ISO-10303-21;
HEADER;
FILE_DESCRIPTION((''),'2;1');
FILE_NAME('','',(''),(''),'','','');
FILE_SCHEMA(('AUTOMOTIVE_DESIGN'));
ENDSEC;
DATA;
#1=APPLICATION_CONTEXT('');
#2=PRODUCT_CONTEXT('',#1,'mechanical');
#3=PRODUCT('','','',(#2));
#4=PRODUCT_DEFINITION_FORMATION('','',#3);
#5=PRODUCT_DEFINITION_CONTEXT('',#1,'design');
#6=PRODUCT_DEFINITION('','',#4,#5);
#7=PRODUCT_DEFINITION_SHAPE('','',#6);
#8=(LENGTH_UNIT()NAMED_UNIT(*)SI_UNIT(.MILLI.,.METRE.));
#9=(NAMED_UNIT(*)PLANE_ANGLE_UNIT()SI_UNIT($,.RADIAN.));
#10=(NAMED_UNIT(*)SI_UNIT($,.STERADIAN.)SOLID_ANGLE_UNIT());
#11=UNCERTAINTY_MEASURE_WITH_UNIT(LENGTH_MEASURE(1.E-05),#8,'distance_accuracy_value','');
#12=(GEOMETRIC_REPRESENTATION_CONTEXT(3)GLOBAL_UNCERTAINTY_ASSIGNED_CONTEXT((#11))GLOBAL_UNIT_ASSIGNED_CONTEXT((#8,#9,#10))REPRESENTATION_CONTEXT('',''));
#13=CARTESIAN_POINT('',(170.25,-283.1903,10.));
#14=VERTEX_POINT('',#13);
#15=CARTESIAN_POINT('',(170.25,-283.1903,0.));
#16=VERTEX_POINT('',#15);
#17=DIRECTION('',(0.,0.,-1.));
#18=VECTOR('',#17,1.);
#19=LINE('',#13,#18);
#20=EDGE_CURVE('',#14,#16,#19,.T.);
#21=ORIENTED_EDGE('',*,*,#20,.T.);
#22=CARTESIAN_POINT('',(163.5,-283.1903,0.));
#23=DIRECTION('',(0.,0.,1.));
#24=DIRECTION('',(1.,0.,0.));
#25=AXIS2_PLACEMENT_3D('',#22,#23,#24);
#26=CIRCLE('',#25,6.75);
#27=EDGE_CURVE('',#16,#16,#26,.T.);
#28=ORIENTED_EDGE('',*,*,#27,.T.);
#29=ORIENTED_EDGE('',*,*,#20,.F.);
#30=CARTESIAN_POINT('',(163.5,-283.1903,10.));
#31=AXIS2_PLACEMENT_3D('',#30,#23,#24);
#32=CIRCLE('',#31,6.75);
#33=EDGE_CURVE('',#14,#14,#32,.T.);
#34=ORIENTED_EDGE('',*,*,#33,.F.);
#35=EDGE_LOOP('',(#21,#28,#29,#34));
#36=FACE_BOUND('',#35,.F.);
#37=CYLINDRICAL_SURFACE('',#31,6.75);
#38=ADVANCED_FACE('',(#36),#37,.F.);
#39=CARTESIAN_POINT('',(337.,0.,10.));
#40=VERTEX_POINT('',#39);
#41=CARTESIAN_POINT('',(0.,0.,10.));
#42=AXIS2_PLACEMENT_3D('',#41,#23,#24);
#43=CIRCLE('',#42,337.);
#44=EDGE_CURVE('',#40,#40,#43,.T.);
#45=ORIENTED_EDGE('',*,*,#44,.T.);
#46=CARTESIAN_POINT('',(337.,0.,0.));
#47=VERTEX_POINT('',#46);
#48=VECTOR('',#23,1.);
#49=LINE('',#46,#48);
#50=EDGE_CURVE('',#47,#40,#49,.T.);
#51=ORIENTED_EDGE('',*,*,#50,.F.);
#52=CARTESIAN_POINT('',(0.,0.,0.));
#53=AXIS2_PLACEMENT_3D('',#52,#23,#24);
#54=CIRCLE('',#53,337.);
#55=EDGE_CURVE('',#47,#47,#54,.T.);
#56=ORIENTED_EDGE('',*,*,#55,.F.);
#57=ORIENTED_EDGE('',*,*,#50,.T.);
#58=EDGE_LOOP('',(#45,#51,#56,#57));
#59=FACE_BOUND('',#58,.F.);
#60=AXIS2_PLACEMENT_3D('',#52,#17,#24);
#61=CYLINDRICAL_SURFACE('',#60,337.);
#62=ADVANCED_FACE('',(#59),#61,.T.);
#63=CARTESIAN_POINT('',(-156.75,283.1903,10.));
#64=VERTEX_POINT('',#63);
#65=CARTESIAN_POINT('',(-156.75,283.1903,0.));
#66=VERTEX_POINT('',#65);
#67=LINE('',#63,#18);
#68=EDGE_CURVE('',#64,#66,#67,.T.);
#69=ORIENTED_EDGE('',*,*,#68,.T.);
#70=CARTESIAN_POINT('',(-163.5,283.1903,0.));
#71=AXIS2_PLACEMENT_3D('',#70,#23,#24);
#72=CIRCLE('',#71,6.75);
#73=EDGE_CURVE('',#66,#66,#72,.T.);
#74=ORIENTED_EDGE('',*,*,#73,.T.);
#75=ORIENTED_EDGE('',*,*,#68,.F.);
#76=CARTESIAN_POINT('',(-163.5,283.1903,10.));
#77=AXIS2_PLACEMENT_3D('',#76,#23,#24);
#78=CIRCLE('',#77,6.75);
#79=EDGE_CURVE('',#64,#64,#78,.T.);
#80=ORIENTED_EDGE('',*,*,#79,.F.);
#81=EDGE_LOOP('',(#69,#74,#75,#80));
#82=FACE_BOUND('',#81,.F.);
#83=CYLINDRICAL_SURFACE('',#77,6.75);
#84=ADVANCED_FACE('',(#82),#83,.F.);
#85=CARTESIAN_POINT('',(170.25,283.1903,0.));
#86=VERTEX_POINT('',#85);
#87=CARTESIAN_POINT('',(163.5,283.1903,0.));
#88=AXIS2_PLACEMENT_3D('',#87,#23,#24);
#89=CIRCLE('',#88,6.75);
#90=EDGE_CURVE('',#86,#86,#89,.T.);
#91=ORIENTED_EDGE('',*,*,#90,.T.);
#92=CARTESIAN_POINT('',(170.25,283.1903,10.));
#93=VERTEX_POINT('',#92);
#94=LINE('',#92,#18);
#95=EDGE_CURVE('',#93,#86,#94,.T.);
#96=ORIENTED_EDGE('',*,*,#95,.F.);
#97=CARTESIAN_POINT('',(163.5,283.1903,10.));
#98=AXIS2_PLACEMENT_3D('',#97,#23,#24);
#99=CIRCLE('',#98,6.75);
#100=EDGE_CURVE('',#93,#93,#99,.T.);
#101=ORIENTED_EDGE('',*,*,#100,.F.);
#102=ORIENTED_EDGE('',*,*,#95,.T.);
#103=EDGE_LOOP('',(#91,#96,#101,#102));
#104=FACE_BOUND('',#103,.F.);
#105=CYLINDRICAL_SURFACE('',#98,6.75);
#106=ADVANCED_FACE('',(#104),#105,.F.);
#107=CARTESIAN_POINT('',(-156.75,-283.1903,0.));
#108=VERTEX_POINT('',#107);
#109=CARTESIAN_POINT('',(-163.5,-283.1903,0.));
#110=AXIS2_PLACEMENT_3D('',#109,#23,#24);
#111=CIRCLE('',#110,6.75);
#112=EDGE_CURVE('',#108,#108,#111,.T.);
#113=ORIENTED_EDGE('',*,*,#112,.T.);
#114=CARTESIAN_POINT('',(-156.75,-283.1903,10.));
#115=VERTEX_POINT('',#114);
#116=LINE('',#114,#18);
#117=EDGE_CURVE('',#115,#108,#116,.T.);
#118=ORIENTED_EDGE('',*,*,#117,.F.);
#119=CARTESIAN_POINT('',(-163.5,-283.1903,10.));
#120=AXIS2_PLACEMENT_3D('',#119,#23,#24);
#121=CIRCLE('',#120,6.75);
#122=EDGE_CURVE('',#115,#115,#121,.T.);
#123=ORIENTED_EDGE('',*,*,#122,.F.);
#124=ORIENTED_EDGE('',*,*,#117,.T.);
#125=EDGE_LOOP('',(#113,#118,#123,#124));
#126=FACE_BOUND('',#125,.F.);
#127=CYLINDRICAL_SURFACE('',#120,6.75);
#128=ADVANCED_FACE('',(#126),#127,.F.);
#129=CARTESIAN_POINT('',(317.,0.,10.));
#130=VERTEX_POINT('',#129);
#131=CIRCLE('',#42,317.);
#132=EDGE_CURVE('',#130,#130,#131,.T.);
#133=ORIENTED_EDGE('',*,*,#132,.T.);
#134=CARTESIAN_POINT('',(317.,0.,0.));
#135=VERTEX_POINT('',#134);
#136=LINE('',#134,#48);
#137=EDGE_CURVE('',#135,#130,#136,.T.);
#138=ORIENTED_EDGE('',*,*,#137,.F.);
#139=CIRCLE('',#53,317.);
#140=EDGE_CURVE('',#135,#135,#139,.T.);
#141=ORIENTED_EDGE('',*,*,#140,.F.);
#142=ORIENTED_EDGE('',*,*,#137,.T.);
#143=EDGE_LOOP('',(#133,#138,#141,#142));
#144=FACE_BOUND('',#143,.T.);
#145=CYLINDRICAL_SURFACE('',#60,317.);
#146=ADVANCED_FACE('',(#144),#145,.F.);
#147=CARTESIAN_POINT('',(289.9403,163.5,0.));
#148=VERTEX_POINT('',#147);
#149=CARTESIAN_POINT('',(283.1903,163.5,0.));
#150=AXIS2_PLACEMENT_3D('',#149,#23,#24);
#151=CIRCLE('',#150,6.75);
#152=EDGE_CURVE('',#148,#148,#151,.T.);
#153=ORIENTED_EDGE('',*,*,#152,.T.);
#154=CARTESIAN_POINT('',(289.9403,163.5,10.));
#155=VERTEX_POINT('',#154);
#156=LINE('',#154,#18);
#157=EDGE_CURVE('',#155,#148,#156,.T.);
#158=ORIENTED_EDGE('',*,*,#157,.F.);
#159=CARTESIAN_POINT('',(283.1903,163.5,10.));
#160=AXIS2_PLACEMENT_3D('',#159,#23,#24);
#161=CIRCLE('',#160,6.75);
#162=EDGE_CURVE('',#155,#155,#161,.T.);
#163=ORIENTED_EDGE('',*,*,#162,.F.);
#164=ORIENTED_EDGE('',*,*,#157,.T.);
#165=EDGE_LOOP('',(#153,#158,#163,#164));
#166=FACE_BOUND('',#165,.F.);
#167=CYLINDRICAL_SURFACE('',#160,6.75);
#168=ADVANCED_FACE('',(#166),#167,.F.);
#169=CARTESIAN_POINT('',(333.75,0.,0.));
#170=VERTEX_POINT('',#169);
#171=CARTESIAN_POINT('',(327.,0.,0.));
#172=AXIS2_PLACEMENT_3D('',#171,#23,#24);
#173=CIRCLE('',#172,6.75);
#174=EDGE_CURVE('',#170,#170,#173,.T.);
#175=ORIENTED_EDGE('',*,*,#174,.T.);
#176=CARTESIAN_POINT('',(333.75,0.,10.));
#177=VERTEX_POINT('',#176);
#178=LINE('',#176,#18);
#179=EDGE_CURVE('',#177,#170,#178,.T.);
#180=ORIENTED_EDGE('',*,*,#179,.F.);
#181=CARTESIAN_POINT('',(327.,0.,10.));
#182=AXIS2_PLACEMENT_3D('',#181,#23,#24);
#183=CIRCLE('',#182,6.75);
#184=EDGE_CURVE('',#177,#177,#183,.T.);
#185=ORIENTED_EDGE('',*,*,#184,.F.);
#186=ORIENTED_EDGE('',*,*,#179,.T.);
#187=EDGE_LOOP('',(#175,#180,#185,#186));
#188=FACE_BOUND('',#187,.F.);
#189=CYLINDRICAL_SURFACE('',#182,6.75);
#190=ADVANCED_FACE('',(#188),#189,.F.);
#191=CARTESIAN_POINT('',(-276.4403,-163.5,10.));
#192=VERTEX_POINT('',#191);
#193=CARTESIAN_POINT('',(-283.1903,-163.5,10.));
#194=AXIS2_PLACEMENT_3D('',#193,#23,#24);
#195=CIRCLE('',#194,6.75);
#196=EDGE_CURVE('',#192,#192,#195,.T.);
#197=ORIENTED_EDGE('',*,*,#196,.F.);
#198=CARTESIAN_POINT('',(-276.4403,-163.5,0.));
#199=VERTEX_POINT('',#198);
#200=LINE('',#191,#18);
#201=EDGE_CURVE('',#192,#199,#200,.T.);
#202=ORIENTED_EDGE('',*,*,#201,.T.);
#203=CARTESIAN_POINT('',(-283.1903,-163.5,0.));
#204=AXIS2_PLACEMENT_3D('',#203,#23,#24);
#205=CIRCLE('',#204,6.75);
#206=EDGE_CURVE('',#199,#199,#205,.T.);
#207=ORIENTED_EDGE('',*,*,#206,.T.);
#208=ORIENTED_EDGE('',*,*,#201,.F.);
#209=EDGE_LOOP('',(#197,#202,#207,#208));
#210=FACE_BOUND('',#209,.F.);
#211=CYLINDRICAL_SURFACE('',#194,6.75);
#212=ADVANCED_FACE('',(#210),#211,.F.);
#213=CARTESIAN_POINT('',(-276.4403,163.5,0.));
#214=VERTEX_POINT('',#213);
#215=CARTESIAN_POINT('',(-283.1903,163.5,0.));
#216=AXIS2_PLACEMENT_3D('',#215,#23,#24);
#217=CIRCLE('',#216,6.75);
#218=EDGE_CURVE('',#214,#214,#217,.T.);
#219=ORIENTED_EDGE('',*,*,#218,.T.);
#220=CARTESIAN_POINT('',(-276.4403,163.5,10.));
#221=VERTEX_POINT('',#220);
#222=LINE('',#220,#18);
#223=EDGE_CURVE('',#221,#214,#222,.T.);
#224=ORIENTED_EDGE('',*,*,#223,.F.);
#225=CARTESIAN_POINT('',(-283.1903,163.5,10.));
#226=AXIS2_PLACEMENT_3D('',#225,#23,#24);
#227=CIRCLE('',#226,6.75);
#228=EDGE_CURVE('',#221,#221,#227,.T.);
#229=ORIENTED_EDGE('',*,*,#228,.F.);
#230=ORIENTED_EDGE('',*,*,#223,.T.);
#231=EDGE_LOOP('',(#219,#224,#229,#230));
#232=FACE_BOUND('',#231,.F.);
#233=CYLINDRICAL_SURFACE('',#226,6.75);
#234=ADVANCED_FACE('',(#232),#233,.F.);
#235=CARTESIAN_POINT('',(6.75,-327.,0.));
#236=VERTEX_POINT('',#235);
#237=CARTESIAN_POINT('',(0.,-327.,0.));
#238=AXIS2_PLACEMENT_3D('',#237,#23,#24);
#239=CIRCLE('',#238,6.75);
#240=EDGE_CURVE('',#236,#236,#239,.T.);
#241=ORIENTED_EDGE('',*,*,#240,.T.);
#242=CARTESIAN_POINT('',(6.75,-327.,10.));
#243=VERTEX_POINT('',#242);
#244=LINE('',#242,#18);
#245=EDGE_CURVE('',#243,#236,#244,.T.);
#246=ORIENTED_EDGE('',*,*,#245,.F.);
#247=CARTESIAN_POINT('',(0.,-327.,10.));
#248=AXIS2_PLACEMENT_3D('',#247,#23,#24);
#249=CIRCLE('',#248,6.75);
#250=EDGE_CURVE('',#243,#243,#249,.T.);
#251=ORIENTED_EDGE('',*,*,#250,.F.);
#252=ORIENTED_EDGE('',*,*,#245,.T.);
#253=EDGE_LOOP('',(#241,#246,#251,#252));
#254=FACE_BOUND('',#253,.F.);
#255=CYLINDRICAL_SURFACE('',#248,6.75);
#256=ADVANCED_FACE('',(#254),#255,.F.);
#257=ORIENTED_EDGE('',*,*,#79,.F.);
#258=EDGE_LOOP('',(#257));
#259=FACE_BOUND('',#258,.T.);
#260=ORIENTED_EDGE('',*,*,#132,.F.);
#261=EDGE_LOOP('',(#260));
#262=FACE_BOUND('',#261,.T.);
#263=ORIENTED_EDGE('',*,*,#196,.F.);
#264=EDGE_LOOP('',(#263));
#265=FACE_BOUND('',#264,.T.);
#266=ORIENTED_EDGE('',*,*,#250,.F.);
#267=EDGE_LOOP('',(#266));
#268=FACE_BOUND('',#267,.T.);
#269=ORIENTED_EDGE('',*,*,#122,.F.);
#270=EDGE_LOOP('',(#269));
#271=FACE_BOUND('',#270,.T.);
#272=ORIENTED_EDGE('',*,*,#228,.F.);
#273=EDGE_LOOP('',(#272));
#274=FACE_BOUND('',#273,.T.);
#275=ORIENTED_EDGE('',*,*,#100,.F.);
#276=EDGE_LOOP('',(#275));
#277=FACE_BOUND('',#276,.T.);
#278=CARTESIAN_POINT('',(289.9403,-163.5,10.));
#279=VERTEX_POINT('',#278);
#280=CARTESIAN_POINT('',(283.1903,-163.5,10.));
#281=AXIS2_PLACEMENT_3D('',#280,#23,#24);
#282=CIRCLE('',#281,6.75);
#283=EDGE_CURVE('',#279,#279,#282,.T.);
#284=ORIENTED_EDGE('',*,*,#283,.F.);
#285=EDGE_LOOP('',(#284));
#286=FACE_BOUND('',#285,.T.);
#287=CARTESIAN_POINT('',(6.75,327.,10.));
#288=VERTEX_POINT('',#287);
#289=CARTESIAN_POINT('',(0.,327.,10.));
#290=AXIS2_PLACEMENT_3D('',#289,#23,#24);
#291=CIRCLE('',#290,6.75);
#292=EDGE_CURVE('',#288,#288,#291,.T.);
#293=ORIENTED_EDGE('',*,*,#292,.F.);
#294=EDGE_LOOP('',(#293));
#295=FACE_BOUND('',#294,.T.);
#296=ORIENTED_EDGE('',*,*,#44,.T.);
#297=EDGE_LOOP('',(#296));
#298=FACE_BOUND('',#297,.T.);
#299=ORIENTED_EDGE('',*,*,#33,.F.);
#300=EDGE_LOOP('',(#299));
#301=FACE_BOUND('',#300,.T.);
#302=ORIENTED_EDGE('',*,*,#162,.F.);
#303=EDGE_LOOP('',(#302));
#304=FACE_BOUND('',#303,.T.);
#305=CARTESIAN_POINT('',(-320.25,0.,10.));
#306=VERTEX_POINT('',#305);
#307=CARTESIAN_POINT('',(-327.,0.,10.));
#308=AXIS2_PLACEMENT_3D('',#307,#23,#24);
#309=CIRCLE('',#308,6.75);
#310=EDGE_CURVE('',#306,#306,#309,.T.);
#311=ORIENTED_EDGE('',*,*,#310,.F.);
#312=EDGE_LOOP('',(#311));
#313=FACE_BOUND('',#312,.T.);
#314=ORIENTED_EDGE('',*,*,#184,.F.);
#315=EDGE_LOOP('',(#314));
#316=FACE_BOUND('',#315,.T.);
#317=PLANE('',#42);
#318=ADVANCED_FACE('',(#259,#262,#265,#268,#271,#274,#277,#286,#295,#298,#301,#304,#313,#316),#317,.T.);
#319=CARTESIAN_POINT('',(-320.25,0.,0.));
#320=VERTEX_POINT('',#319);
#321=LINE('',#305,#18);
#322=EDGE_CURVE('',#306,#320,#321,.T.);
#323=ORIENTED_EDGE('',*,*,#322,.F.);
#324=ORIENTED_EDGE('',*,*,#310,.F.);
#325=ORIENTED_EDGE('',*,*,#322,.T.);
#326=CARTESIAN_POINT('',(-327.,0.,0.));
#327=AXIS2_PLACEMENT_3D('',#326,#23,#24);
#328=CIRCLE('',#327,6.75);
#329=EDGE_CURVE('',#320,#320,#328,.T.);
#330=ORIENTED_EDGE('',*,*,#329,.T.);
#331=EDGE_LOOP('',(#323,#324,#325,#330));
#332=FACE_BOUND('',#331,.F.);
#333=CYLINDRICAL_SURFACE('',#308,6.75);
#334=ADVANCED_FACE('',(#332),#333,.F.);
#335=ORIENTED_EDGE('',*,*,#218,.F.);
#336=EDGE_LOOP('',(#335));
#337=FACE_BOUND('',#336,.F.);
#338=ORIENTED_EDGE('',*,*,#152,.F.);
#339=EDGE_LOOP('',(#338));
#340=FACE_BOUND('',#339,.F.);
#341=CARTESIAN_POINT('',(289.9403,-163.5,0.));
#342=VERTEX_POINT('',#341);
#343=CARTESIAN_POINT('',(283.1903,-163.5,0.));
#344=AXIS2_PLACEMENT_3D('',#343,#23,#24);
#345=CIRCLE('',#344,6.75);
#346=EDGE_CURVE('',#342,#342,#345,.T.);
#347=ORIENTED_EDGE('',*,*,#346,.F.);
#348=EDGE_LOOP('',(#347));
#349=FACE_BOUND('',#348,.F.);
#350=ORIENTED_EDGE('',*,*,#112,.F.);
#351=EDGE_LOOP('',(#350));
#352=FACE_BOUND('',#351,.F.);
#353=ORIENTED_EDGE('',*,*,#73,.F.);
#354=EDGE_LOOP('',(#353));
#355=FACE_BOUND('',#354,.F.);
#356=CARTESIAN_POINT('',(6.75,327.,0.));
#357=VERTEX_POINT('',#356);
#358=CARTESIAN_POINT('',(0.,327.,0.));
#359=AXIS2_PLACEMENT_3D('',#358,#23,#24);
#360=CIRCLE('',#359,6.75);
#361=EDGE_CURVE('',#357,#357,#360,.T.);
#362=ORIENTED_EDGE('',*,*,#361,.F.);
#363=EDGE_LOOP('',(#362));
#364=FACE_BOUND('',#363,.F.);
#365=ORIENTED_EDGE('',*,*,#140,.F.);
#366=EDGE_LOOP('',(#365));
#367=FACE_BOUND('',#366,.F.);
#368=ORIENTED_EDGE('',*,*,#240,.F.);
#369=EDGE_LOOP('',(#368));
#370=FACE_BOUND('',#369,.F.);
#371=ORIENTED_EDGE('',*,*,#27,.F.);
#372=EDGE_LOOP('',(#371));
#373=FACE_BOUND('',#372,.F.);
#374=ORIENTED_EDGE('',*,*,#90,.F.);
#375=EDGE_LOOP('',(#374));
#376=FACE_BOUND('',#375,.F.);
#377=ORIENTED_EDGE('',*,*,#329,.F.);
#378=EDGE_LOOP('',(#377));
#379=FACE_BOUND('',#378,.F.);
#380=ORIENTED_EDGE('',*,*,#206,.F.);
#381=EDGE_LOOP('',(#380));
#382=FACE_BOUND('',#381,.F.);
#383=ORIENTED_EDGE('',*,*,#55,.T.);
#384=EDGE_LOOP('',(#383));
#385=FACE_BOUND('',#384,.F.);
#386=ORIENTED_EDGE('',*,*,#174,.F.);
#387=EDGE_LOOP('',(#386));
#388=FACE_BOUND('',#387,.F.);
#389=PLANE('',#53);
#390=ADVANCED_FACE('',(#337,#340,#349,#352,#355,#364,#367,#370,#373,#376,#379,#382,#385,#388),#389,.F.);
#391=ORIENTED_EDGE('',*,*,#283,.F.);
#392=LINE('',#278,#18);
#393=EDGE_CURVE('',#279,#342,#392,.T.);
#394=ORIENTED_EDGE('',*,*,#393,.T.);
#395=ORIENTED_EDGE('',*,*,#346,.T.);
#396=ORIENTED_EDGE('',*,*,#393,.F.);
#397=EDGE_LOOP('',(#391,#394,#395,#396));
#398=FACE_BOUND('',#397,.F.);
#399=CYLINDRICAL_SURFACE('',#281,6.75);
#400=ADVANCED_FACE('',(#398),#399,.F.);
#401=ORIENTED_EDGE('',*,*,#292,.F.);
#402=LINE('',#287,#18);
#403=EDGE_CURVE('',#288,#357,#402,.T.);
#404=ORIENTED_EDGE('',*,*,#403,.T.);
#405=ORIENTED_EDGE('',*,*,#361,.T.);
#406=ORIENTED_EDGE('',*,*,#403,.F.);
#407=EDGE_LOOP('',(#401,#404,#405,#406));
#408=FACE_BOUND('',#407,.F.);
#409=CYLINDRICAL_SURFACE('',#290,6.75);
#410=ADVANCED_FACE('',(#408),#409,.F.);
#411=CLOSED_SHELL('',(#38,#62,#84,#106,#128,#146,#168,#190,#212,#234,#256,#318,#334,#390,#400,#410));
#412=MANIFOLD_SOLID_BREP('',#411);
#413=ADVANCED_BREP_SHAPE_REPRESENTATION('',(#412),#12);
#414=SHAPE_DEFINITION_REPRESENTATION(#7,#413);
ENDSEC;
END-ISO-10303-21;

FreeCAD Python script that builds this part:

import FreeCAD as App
import Part
import Sketcher
from FreeCAD import Vector

doc = App.newDocument("Part")
params = doc.addObject("Spreadsheet::Sheet", "Params")
for row, (alias, value) in enumerate([
    ("sketch1_diameter", "674 mm"),
    ("sketch1_diameter2", "634 mm"),
    ("pad1_length", "10 mm"),
    ("sketch2_diameter", "13.5 mm"),
], start=1):
    params.set(f"A{row}", alias)
    params.set(f"B{row}", "=" + value)
    params.setAlias(f"B{row}", alias)

body = doc.addObject("PartDesign::Body", "Body")

# Sketch on XY plane
sketch1 = body.newObject("Sketcher::SketchObject", "Sketch")
sketch1.AttachmentSupport = (doc.getObject("XY_Plane"), [""])
sketch1.MapMode = "FlatFace"
sketch1.addGeometry([
    Part.Circle(Vector(0, 0, 0), Vector(0, 0, 1), 337),
    Part.Circle(Vector(0, 0, 0), Vector(0, 0, 1), 317),
], False)
sketch1.addConstraint([
    Sketcher.Constraint("Coincident", 0, 3, -1, 1),
    Sketcher.Constraint("Coincident", 1, 3, -1, 1),
    Sketcher.Constraint("Diameter", 0, 674.0),
    Sketcher.Constraint("Diameter", 1, 634.0),
])
sketch1.setExpression("Constraints[2]", "Params.sketch1_diameter")
sketch1.setExpression("Constraints[3]", "Params.sketch1_diameter2")
pad1 = body.newObject("PartDesign::Pad", "Pad")
pad1.Profile = sketch1
pad1.setExpression("Length", "Params.pad1_length")

# Sketch on XY plane
sketch2 = body.newObject("Sketcher::SketchObject", "Sketch001")
sketch2.AttachmentSupport = (doc.getObject("XY_Plane"), [""])
sketch2.MapMode = "FlatFace"
sketch2.AttachmentOffset = App.Placement(Vector(0, 0, 10), App.Rotation())
sketch2.addGeometry([
    Part.Circle(Vector(0, 327, 0), Vector(0, 0, 1), 7),  # 0
    Part.Circle(Vector(-164, 283, 0), Vector(0, 0, 1), 7),  # 1
    Part.Circle(Vector(-283, 164, 0), Vector(0, 0, 1), 7),  # 2
    Part.Circle(Vector(-327, 0, 0), Vector(0, 0, 1), 7),  # 3
    Part.Circle(Vector(-283, -164, 0), Vector(0, 0, 1), 7),  # 4
    Part.Circle(Vector(-164, -283, 0), Vector(0, 0, 1), 7),  # 5
    Part.Circle(Vector(0, -327, 0), Vector(0, 0, 1), 7),  # 6
    Part.Circle(Vector(164, -283, 0), Vector(0, 0, 1), 7),  # 7
    Part.Circle(Vector(283, -164, 0), Vector(0, 0, 1), 7),  # 8
    Part.Circle(Vector(327, 0, 0), Vector(0, 0, 1), 7),  # 9
    Part.Circle(Vector(283, 164, 0), Vector(0, 0, 1), 7),  # 10
    Part.Circle(Vector(164, 283, 0), Vector(0, 0, 1), 7),  # 11
], False)
sketch2.addConstraint([
    Sketcher.Constraint("Equal", 0, 1),
    Sketcher.Constraint("Equal", 1, 2),
    Sketcher.Constraint("Equal", 2, 3),
    Sketcher.Constraint("Equal", 3, 4),
    Sketcher.Constraint("Equal", 4, 5),
    Sketcher.Constraint("Equal", 5, 6),
    Sketcher.Constraint("Equal", 6, 7),
    Sketcher.Constraint("Equal", 7, 8),
    Sketcher.Constraint("Equal", 8, 9),
    Sketcher.Constraint("Equal", 9, 10),
    Sketcher.Constraint("Equal", 10, 11),
    Sketcher.Constraint("Symmetric", 0, 3, 6, 3, -1, 1),
    Sketcher.Constraint("Symmetric", 1, 3, 7, 3, -1, 1),
    Sketcher.Constraint("Symmetric", 2, 3, 8, 3, -1, 1),
    Sketcher.Constraint("Symmetric", 3, 3, 9, 3, -1, 1),
    Sketcher.Constraint("Symmetric", 4, 3, 10, 3, -1, 1),
    Sketcher.Constraint("Symmetric", 5, 3, 11, 3, -1, 1),
    Sketcher.Constraint("Symmetric", 5, 3, 7, 3, -2),
    Sketcher.Constraint("Symmetric", 4, 3, 8, 3, -2),
    Sketcher.Constraint("PointOnObject", 0, 3, -2),
    Sketcher.Constraint("PointOnObject", 3, 3, -1),
    Sketcher.Constraint("Diameter", 0, 13.5),
    Sketcher.Constraint("DistanceY", -1, 1, 0, 3, 327.0),
    Sketcher.Constraint("DistanceX", 3, 3, -1, 1, 327.0),
    Sketcher.Constraint("DistanceY", 4, 3, 2, 3, 327.0),
    Sketcher.Constraint("DistanceX", 5, 3, 7, 3, 327.0),
    Sketcher.Constraint("DistanceY", -1, 1, 1, 3, 283.1903),
    Sketcher.Constraint("DistanceX", 2, 3, -1, 1, 283.1903),
])
sketch2.setExpression("Constraints[21]", "Params.sketch2_diameter")
pocket1 = body.newObject("PartDesign::Pocket", "Pocket")
pocket1.Profile = sketch2
pocket1.Type = "ThroughAll"

doc.recompute()
